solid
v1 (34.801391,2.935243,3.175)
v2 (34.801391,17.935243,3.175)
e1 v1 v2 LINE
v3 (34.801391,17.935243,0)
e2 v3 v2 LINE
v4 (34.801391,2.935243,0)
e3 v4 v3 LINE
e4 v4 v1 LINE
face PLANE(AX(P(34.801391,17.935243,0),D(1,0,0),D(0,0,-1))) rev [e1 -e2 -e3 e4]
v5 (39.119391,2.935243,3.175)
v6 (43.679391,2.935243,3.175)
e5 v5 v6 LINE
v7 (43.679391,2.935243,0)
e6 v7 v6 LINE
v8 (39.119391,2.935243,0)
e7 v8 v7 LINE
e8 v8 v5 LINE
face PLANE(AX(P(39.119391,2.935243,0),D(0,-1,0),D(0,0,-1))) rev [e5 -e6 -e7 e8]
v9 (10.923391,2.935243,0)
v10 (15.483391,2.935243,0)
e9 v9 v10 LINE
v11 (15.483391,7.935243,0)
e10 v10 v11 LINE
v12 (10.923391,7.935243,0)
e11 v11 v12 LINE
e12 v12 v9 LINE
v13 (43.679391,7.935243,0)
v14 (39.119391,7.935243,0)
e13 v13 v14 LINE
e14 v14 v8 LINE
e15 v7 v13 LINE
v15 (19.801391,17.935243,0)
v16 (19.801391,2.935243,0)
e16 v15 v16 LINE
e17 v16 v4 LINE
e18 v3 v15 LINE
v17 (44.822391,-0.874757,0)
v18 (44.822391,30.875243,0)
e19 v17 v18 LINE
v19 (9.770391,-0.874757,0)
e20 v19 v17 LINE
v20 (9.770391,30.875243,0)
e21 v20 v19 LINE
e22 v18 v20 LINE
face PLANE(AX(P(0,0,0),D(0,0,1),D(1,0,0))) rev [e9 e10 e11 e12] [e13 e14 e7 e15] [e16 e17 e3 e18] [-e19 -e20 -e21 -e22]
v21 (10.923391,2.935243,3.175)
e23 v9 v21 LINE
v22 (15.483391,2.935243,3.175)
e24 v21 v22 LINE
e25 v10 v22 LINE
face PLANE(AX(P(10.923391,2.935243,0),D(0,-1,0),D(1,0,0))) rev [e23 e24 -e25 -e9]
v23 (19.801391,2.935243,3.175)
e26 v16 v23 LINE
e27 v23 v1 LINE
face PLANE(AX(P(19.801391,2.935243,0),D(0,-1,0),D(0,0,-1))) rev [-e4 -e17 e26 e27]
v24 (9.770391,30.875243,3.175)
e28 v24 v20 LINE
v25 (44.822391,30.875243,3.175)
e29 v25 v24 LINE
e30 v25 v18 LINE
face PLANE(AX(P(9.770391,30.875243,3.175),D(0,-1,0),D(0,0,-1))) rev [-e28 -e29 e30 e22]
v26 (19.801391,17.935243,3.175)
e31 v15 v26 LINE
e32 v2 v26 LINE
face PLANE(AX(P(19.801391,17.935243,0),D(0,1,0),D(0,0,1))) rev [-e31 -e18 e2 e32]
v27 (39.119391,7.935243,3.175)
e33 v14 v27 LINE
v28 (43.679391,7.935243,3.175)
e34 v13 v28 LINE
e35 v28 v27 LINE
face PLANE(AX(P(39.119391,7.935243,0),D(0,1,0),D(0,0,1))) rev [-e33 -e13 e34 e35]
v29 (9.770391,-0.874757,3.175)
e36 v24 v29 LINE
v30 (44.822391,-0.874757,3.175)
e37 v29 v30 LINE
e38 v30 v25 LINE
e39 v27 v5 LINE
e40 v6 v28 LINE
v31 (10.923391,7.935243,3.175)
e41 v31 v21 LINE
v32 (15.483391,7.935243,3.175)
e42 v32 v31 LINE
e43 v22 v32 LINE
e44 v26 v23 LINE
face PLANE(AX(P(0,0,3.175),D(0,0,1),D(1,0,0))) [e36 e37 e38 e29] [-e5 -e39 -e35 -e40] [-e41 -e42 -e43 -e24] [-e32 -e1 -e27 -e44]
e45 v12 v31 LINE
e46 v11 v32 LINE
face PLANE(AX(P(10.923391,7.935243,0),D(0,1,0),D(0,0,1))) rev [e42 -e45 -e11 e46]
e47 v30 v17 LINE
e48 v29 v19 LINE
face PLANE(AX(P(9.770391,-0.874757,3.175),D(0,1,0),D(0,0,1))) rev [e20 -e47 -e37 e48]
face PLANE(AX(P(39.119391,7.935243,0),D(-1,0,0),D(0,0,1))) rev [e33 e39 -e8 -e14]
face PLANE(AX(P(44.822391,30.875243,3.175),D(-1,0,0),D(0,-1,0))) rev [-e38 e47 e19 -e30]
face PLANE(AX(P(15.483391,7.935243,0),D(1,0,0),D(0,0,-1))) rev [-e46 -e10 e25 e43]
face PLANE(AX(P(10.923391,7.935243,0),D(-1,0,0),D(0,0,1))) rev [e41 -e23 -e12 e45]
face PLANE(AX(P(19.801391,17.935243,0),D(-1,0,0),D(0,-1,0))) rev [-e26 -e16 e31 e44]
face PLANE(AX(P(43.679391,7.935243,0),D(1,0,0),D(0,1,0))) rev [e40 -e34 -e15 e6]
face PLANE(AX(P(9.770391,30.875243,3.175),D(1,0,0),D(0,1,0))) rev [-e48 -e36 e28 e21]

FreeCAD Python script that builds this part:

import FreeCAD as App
import Part
import Sketcher
Q = App.Units.Quantity


def add_polygon(sketch, points):
    """Adds a closed chain of lines whose ends are joined by coincident constraints."""
    first, n = sketch.GeometryCount, len(points)
    for a, b in zip(points, points[1:] + points[:1]):
        sketch.addGeometry(Part.LineSegment(App.Vector(*a, 0), App.Vector(*b, 0)), False)
    for i in range(n):
        sketch.addConstraint(Sketcher.Constraint("Coincident", first + i, 2, first + (i + 1) % n, 1))

doc = App.newDocument("Part")
body = doc.addObject("PartDesign::Body", "Body")

sketch1 = body.newObject("Sketcher::SketchObject", "Sketch")
sketch1.AttachmentSupport = (doc.getObject("XY_Plane"), [""])
sketch1.MapMode = "FlatFace"
add_polygon(sketch1, [(9.770391, 30.875243), (9.770391, -0.874757), (44.822391, -0.874757), (44.822391, 30.875243)])
sketch1.addConstraint([
    Sketcher.Constraint("Vertical", 0),
    Sketcher.Constraint("Horizontal", 1),
    Sketcher.Constraint("Vertical", 2),
    Sketcher.Constraint("Horizontal", 3),
    Sketcher.Constraint("DistanceX", 1, 1, 1, 2, Q("1.38 in")),
    Sketcher.Constraint("DistanceY", 0, 2, 0, 1, Q("1.25 in")),
    Sketcher.Constraint("DistanceX", -1, 1, 0, 2, Q("9.770391 mm")),
    Sketcher.Constraint("DistanceY", 0, 2, -1, 1, Q("0.874757 mm")),
])
pad1 = body.newObject("PartDesign::Pad", "Pad")
pad1.Profile = sketch1
pad1.Length = Q("0.125 in")

sketch2 = body.newObject("Sketcher::SketchObject", "Sketch001")
sketch2.AttachmentSupport = (doc.getObject("XY_Plane"), [""])
sketch2.MapMode = "FlatFace"
sketch2.AttachmentOffset = App.Placement(App.Vector(0, 0, 0.125 * 25.4), App.Rotation())
add_polygon(sketch2, [(19.801391, 17.935243), (19.801391, 2.935243), (34.801391, 2.935243), (34.801391, 17.935243)])
add_polygon(sketch2, [(39.119391, 7.935243), (39.119391, 2.935243), (43.679391, 2.935243), (43.679391, 7.935243)])
add_polygon(sketch2, [(10.923391, 7.935243), (10.923391, 2.935243), (15.483391, 2.935243), (15.483391, 7.935243)])
sketch2.addConstraint([
    Sketcher.Constraint("Vertical", 0),
    Sketcher.Constraint("Horizontal", 1),
    Sketcher.Constraint("Vertical", 2),
    Sketcher.Constraint("Horizontal", 3),
    Sketcher.Constraint("Vertical", 4),
    Sketcher.Constraint("Horizontal", 5),
    Sketcher.Constraint("Vertical", 6),
    Sketcher.Constraint("Horizontal", 7),
    Sketcher.Constraint("Vertical", 8),
    Sketcher.Constraint("Horizontal", 9),
    Sketcher.Constraint("Vertical", 10),
    Sketcher.Constraint("Horizontal", 11),
    Sketcher.Constraint("Horizontal", 1, 2, 4, 2),
    Sketcher.Constraint("Horizontal", 5, 2, 8, 2),
    Sketcher.Constraint("Horizontal", 7, 2, 10, 2),
    Sketcher.Constraint("Equal", 7, 9),
    Sketcher.Constraint("Equal", 3, 0),
    Sketcher.Constraint("DistanceX", 1, 2, 4, 2, Q("0.17 in")),
    Sketcher.Constraint("DistanceX", 9, 2, 0, 2, Q("0.17 in")),
    Sketcher.Constraint("DistanceX", 1, 1, 1, 2, Q("15 mm")),
    Sketcher.Constraint("DistanceX", 5, 1, 5, 2, Q("4.56 mm")),
    Sketcher.Constraint("DistanceY", 4, 2, 4, 1, Q("5 mm")),
    Sketcher.Constraint("DistanceX", -1, 1, 0, 2, Q("19.801391 mm")),
    Sketcher.Constraint("DistanceY", -1, 1, 0, 2, Q("2.935243 mm")),
])
pocket1 = body.newObject("PartDesign::Pocket", "Pocket")
pocket1.Profile = sketch2
pocket1.Length = Q("0.125 in")

doc.recompute()
